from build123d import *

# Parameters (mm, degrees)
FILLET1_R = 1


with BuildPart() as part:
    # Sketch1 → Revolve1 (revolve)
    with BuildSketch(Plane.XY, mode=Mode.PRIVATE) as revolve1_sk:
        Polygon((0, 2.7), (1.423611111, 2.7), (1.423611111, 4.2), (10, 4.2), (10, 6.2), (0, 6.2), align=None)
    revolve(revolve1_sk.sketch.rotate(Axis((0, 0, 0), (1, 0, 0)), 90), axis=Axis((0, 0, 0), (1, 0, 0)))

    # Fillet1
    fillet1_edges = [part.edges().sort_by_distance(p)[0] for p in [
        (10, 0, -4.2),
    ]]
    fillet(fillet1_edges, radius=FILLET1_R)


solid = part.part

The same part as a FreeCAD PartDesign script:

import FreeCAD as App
import Part
import Sketcher
from FreeCAD import Vector


def edges_at(feature, points):
    """Names of the edges that pass closest to the given points."""
    edges = feature.Shape.Edges
    near = lambda p: min(range(len(edges)), key=lambda i: edges[i].distToShape(Part.Vertex(*p))[0])
    return sorted({f"Edge{near(p) + 1}" for p in points})

doc = App.newDocument("Part")
body = doc.addObject("PartDesign::Body", "Body")

# Sketch on XY plane
sketch1 = body.newObject("Sketcher::SketchObject", "Sketch")
sketch1.AttachmentSupport = (doc.getObject("XY_Plane"), [""])
sketch1.MapMode = "FlatFace"
sketch1.addGeometry([
    Part.LineSegment(Vector(0, 2.7, 0), Vector(1.4, 2.7, 0)),  # 0
    Part.LineSegment(Vector(1.4, 2.7, 0), Vector(1.4, 4.2, 0)),  # 1
    Part.LineSegment(Vector(1.4, 4.2, 0), Vector(10, 4.2, 0)),  # 2
    Part.LineSegment(Vector(10, 4.2, 0), Vector(10, 6.2, 0)),  # 3
    Part.LineSegment(Vector(10, 6.2, 0), Vector(0, 6.2, 0)),  # 4
    Part.LineSegment(Vector(0, 6.2, 0), Vector(0, 2.7, 0)),  # 5
], False)
sketch1.addConstraint([
    Sketcher.Constraint("Coincident", 0, 2, 1, 1),
    Sketcher.Constraint("Coincident", 1, 2, 2, 1),
    Sketcher.Constraint("Coincident", 2, 2, 3, 1),
    Sketcher.Constraint("Coincident", 3, 2, 4, 1),
    Sketcher.Constraint("Coincident", 4, 2, 5, 1),
    Sketcher.Constraint("Coincident", 5, 2, 0, 1),
    Sketcher.Constraint("Horizontal", 0),
    Sketcher.Constraint("Vertical", 1),
    Sketcher.Constraint("Horizontal", 2),
    Sketcher.Constraint("Vertical", 3),
    Sketcher.Constraint("Horizontal", 4),
    Sketcher.Constraint("Vertical", 5),
    Sketcher.Constraint("PointOnObject", 4, 2, -2),
    Sketcher.Constraint("DistanceX", 4, 2, 4, 1, 10.0),
    Sketcher.Constraint("DistanceY", 3, 1, 3, 2, 2.0),
    Sketcher.Constraint("DistanceY", 1, 1, 1, 2, 1.5),
    Sketcher.Constraint("DistanceY", -1, 1, 0, 2, 2.7),
    Sketcher.Constraint("DistanceX", 0, 1, 0, 2, 1.423611),
])
revolution = body.newObject("PartDesign::Revolution", "Revolution")
revolution.Profile = sketch1
revolution.ReferenceAxis = (sketch1, ["H_Axis"])
revolution.Angle = 360
doc.recompute()

fillet = body.newObject("PartDesign::Fillet", "Fillet")
fillet.Base = (revolution, edges_at(revolution, [(10, 0, -4.2)]))
fillet.Radius = 1

doc.recompute()
